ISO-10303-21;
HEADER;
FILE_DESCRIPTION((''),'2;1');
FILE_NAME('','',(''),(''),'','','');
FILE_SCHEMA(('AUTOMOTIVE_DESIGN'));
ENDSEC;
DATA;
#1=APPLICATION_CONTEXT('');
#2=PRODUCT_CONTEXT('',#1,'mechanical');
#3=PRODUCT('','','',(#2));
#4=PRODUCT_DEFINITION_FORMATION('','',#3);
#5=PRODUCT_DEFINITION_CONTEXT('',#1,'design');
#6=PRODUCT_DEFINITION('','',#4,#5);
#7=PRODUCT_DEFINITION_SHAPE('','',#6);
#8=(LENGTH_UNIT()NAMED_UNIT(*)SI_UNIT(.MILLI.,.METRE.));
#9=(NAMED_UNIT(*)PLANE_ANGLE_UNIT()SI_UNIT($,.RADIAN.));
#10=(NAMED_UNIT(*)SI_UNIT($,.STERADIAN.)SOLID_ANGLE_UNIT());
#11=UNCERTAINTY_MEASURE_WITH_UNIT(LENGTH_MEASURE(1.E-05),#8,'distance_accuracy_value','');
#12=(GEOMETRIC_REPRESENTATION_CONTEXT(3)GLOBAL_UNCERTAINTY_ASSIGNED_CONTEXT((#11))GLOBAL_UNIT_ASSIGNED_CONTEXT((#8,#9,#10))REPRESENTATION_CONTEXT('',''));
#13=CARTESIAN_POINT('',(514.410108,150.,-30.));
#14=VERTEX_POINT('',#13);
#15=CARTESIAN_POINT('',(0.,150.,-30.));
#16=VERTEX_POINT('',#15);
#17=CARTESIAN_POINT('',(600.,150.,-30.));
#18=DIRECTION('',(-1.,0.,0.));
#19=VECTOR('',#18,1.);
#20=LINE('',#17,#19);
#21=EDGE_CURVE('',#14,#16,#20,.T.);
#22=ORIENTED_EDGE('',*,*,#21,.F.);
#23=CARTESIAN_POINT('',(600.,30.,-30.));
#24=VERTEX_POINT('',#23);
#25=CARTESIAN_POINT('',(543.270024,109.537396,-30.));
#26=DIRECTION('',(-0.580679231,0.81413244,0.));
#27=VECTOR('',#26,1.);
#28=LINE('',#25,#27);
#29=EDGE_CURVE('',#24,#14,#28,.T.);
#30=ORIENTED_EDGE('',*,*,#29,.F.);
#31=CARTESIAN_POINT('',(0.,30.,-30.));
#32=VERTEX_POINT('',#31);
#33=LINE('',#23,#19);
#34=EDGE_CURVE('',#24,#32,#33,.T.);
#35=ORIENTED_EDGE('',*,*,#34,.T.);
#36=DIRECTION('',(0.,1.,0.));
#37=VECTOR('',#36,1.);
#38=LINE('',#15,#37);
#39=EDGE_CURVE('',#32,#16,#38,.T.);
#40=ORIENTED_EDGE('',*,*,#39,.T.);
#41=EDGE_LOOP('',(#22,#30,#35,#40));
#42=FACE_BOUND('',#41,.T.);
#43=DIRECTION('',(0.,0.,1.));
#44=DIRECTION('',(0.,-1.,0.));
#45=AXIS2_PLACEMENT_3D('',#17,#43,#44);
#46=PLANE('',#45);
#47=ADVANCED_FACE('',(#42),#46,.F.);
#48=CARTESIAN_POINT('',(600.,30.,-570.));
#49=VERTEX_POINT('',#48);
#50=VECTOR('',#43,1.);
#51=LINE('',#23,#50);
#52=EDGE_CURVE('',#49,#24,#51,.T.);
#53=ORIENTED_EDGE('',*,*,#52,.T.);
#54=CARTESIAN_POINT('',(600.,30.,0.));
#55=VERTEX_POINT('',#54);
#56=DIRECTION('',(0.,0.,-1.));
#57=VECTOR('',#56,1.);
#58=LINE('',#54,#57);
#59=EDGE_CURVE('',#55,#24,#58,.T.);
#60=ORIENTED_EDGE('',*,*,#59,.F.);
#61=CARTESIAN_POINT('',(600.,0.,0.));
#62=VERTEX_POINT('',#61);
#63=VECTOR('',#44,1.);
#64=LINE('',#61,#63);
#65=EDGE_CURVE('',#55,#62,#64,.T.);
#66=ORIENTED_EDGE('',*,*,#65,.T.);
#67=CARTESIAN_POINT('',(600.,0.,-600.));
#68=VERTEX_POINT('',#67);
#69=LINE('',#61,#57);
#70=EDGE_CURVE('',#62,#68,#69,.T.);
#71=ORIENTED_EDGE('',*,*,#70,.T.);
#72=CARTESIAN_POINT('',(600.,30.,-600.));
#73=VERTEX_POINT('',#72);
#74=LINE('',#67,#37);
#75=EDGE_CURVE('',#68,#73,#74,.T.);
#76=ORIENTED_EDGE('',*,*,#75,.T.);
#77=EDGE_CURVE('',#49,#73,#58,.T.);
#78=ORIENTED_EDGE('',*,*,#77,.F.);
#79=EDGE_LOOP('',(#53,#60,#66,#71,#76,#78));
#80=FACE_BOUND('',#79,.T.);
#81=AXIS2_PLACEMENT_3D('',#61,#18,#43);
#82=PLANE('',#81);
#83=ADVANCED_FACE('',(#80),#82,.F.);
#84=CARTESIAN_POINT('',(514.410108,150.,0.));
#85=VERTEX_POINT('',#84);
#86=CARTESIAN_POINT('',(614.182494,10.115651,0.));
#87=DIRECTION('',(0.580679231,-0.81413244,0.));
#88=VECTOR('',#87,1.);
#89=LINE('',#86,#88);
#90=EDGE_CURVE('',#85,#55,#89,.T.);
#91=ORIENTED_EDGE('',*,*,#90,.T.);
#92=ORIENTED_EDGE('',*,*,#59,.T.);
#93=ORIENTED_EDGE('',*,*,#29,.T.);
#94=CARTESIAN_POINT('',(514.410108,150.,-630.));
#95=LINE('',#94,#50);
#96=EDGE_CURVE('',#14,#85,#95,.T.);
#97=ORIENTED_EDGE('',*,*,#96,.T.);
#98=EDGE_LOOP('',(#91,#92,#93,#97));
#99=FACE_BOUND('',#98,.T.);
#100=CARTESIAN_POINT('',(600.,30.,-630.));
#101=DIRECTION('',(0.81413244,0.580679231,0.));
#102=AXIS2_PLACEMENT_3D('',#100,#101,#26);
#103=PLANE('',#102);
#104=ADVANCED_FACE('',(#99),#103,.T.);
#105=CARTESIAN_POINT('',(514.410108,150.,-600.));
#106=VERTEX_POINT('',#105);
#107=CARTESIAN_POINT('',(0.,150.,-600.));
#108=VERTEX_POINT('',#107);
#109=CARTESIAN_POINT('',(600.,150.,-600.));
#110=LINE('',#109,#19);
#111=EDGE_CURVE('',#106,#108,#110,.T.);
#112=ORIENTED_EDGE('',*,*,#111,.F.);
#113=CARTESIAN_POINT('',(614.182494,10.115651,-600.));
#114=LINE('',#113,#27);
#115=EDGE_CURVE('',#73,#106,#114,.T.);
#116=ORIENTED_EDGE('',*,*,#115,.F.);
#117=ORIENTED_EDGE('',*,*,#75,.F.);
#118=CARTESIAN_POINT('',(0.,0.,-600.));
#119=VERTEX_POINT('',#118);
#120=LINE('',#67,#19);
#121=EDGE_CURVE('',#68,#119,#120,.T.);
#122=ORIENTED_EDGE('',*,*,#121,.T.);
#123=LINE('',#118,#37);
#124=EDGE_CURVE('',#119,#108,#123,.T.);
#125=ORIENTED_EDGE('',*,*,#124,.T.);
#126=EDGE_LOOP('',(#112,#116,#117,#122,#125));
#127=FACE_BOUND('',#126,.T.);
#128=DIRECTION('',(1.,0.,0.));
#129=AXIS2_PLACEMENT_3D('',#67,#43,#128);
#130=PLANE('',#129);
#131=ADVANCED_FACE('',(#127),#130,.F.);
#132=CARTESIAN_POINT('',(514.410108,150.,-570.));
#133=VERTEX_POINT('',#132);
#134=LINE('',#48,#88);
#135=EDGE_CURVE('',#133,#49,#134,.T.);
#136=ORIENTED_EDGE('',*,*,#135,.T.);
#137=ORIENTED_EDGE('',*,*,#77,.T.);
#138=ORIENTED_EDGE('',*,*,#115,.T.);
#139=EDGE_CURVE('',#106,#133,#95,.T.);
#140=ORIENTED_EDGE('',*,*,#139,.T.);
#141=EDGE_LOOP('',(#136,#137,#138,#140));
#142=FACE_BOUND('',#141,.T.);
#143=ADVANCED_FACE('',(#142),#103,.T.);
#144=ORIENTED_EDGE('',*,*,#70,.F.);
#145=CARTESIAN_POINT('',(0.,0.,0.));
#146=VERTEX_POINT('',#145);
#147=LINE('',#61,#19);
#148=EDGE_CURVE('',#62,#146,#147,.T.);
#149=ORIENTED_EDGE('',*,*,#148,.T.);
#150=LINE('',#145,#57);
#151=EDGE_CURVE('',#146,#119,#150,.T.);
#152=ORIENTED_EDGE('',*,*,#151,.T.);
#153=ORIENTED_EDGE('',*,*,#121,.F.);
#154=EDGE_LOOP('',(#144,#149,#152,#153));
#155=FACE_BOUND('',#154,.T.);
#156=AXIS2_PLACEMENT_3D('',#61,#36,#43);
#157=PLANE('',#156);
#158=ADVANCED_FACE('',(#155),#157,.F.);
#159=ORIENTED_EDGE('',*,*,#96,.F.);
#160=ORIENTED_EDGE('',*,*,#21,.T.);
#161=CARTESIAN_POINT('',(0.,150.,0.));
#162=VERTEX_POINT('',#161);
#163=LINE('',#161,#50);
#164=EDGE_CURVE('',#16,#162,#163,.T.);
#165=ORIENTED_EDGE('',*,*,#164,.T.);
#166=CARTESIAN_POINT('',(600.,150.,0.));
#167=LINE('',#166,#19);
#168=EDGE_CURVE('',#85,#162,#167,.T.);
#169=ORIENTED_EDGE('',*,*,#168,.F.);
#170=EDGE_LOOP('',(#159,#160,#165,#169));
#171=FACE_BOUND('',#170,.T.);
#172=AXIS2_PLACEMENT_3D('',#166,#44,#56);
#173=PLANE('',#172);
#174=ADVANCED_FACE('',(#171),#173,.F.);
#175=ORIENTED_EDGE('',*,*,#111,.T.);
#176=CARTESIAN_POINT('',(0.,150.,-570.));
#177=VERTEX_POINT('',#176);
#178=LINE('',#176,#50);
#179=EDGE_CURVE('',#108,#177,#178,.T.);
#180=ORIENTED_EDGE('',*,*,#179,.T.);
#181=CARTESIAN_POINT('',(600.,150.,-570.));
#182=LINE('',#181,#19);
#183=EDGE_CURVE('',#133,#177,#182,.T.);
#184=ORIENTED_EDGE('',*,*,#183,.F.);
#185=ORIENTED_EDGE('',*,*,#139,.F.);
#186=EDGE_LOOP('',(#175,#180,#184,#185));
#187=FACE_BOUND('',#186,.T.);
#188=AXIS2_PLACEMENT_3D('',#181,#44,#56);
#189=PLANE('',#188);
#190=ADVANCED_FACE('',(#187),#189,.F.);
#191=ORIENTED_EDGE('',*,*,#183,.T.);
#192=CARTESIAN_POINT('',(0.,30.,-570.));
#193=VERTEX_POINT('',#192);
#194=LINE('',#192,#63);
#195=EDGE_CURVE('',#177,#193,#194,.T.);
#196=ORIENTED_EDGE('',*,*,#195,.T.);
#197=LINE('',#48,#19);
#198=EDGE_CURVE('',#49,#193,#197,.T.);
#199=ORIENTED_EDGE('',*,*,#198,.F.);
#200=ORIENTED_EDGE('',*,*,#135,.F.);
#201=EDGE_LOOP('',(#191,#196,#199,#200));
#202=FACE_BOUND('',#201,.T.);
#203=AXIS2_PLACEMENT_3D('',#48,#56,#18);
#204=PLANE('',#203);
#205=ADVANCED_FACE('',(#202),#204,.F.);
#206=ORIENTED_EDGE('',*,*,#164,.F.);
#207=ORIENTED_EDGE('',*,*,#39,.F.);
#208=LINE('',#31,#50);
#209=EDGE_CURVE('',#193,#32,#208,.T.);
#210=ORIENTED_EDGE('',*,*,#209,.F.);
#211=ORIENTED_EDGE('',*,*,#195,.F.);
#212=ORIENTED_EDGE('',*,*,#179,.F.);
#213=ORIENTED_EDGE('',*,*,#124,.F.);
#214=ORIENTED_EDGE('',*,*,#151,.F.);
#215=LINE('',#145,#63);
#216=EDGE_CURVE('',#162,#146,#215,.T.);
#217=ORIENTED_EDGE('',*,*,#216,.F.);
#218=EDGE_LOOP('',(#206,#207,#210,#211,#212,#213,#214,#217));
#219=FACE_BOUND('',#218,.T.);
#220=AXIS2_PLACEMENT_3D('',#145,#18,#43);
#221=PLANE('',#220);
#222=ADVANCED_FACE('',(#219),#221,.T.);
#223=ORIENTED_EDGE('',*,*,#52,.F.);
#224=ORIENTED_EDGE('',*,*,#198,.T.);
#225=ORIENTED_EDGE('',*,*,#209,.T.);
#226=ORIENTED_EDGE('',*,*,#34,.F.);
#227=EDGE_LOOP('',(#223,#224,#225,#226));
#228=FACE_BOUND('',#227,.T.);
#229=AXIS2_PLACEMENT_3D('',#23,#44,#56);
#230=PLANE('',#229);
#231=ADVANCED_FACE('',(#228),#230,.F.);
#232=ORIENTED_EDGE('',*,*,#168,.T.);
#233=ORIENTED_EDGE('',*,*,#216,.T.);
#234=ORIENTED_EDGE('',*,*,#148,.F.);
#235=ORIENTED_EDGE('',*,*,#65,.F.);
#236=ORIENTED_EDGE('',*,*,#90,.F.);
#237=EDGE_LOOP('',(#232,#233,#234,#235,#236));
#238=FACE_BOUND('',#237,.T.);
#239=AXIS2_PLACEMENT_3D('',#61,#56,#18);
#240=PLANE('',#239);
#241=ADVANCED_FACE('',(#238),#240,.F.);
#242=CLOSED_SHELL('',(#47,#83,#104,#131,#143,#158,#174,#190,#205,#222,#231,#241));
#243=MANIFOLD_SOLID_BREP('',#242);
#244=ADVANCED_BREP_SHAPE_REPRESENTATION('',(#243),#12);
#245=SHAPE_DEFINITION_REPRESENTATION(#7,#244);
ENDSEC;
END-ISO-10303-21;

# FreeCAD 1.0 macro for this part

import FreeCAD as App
import Part
import Sketcher
from FreeCAD import Vector

doc = App.newDocument("Part")
body = doc.addObject("PartDesign::Body", "Body")

# Sketch on YZ plane
sketch1 = body.newObject("Sketcher::SketchObject", "Sketch")
sketch1.AttachmentSupport = (doc.getObject("YZ_Plane"), [""])
sketch1.MapMode = "FlatFace"
sketch1.addGeometry([
    Part.LineSegment(Vector(30, -30, 0), Vector(150, -30, 0)),  # 0
    Part.LineSegment(Vector(150, -30, 0), Vector(150, 0, 0)),  # 1
    Part.LineSegment(Vector(150, 0, 0), Vector(0, 0, 0)),  # 2
    Part.LineSegment(Vector(0, 0, 0), Vector(0, -600, 0)),  # 3
    Part.LineSegment(Vector(0, -600, 0), Vector(150, -600, 0)),  # 4
    Part.LineSegment(Vector(150, -600, 0), Vector(150, -570, 0)),  # 5
    Part.LineSegment(Vector(150, -570, 0), Vector(30, -570, 0)),  # 6
    Part.LineSegment(Vector(30, -570, 0), Vector(30, -30, 0)),  # 7
], False)
sketch1.addConstraint([
    Sketcher.Constraint("Coincident", 0, 2, 1, 1),
    Sketcher.Constraint("Coincident", 1, 2, 2, 1),
    Sketcher.Constraint("Coincident", 2, 2, 3, 1),
    Sketcher.Constraint("Coincident", 3, 2, 4, 1),
    Sketcher.Constraint("Coincident", 4, 2, 5, 1),
    Sketcher.Constraint("Coincident", 5, 2, 6, 1),
    Sketcher.Constraint("Coincident", 6, 2, 7, 1),
    Sketcher.Constraint("Coincident", 7, 2, 0, 1),
    Sketcher.Constraint("Horizontal", 0),
    Sketcher.Constraint("Vertical", 1),
    Sketcher.Constraint("Horizontal", 2),
    Sketcher.Constraint("Vertical", 3),
    Sketcher.Constraint("Horizontal", 4),
    Sketcher.Constraint("Vertical", 5),
    Sketcher.Constraint("Horizontal", 6),
    Sketcher.Constraint("Vertical", 7),
    Sketcher.Constraint("Coincident", 2, 2, -1, 1),
    Sketcher.Constraint("Vertical", 1, 2, 4, 2),
    Sketcher.Constraint("Equal", 1, 5),
    Sketcher.Constraint("DistanceX", 0, 1, 0, 2, 120.0),
    Sketcher.Constraint("DistanceX", 2, 2, 2, 1, 150.0),
    Sketcher.Constraint("DistanceY", 1, 1, 1, 2, 30.0),
    Sketcher.Constraint("DistanceY", 3, 2, 3, 1, 600.0),
])
pad1 = body.newObject("PartDesign::Pad", "Pad")
pad1.Profile = sketch1
pad1.Length = 600

# Sketch on XY plane
sketch2 = body.newObject("Sketcher::SketchObject", "Sketch001")
sketch2.AttachmentSupport = (doc.getObject("XY_Plane"), [""])
sketch2.MapMode = "FlatFace"
sketch2.AttachmentOffset = App.Placement(Vector(0, 0, -30), App.Rotation())
sketch2.addGeometry([
    Part.LineSegment(Vector(600, 30, 0), Vector(514, 150, 0)),
    Part.LineSegment(Vector(514, 150, 0), Vector(600, 150, 0)),
    Part.LineSegment(Vector(600, 150, 0), Vector(600, 30, 0)),
], False)
sketch2.addConstraint([
    Sketcher.Constraint("Coincident", 0, 2, 1, 1),
    Sketcher.Constraint("Coincident", 1, 2, 2, 1),
    Sketcher.Constraint("Coincident", 2, 2, 0, 1),
    Sketcher.Constraint("Horizontal", 1),
    Sketcher.Constraint("Vertical", 2),
    Sketcher.Constraint("DistanceY", 2, 2, 2, 1, 120.0),
    Sketcher.Constraint("DistanceY", -1, 1, 0, 2, 150.0),
    Sketcher.Constraint("DistanceX", -1, 1, 1, 2, 600.0),
    Sketcher.Constraint("DistanceX", 1, 1, 1, 2, 85.589892),
])
pocket1 = body.newObject("PartDesign::Pocket", "Pocket")
pocket1.Profile = sketch2
pocket1.Type = "ThroughAll"
pocket1.Midplane = True

doc.recompute()
